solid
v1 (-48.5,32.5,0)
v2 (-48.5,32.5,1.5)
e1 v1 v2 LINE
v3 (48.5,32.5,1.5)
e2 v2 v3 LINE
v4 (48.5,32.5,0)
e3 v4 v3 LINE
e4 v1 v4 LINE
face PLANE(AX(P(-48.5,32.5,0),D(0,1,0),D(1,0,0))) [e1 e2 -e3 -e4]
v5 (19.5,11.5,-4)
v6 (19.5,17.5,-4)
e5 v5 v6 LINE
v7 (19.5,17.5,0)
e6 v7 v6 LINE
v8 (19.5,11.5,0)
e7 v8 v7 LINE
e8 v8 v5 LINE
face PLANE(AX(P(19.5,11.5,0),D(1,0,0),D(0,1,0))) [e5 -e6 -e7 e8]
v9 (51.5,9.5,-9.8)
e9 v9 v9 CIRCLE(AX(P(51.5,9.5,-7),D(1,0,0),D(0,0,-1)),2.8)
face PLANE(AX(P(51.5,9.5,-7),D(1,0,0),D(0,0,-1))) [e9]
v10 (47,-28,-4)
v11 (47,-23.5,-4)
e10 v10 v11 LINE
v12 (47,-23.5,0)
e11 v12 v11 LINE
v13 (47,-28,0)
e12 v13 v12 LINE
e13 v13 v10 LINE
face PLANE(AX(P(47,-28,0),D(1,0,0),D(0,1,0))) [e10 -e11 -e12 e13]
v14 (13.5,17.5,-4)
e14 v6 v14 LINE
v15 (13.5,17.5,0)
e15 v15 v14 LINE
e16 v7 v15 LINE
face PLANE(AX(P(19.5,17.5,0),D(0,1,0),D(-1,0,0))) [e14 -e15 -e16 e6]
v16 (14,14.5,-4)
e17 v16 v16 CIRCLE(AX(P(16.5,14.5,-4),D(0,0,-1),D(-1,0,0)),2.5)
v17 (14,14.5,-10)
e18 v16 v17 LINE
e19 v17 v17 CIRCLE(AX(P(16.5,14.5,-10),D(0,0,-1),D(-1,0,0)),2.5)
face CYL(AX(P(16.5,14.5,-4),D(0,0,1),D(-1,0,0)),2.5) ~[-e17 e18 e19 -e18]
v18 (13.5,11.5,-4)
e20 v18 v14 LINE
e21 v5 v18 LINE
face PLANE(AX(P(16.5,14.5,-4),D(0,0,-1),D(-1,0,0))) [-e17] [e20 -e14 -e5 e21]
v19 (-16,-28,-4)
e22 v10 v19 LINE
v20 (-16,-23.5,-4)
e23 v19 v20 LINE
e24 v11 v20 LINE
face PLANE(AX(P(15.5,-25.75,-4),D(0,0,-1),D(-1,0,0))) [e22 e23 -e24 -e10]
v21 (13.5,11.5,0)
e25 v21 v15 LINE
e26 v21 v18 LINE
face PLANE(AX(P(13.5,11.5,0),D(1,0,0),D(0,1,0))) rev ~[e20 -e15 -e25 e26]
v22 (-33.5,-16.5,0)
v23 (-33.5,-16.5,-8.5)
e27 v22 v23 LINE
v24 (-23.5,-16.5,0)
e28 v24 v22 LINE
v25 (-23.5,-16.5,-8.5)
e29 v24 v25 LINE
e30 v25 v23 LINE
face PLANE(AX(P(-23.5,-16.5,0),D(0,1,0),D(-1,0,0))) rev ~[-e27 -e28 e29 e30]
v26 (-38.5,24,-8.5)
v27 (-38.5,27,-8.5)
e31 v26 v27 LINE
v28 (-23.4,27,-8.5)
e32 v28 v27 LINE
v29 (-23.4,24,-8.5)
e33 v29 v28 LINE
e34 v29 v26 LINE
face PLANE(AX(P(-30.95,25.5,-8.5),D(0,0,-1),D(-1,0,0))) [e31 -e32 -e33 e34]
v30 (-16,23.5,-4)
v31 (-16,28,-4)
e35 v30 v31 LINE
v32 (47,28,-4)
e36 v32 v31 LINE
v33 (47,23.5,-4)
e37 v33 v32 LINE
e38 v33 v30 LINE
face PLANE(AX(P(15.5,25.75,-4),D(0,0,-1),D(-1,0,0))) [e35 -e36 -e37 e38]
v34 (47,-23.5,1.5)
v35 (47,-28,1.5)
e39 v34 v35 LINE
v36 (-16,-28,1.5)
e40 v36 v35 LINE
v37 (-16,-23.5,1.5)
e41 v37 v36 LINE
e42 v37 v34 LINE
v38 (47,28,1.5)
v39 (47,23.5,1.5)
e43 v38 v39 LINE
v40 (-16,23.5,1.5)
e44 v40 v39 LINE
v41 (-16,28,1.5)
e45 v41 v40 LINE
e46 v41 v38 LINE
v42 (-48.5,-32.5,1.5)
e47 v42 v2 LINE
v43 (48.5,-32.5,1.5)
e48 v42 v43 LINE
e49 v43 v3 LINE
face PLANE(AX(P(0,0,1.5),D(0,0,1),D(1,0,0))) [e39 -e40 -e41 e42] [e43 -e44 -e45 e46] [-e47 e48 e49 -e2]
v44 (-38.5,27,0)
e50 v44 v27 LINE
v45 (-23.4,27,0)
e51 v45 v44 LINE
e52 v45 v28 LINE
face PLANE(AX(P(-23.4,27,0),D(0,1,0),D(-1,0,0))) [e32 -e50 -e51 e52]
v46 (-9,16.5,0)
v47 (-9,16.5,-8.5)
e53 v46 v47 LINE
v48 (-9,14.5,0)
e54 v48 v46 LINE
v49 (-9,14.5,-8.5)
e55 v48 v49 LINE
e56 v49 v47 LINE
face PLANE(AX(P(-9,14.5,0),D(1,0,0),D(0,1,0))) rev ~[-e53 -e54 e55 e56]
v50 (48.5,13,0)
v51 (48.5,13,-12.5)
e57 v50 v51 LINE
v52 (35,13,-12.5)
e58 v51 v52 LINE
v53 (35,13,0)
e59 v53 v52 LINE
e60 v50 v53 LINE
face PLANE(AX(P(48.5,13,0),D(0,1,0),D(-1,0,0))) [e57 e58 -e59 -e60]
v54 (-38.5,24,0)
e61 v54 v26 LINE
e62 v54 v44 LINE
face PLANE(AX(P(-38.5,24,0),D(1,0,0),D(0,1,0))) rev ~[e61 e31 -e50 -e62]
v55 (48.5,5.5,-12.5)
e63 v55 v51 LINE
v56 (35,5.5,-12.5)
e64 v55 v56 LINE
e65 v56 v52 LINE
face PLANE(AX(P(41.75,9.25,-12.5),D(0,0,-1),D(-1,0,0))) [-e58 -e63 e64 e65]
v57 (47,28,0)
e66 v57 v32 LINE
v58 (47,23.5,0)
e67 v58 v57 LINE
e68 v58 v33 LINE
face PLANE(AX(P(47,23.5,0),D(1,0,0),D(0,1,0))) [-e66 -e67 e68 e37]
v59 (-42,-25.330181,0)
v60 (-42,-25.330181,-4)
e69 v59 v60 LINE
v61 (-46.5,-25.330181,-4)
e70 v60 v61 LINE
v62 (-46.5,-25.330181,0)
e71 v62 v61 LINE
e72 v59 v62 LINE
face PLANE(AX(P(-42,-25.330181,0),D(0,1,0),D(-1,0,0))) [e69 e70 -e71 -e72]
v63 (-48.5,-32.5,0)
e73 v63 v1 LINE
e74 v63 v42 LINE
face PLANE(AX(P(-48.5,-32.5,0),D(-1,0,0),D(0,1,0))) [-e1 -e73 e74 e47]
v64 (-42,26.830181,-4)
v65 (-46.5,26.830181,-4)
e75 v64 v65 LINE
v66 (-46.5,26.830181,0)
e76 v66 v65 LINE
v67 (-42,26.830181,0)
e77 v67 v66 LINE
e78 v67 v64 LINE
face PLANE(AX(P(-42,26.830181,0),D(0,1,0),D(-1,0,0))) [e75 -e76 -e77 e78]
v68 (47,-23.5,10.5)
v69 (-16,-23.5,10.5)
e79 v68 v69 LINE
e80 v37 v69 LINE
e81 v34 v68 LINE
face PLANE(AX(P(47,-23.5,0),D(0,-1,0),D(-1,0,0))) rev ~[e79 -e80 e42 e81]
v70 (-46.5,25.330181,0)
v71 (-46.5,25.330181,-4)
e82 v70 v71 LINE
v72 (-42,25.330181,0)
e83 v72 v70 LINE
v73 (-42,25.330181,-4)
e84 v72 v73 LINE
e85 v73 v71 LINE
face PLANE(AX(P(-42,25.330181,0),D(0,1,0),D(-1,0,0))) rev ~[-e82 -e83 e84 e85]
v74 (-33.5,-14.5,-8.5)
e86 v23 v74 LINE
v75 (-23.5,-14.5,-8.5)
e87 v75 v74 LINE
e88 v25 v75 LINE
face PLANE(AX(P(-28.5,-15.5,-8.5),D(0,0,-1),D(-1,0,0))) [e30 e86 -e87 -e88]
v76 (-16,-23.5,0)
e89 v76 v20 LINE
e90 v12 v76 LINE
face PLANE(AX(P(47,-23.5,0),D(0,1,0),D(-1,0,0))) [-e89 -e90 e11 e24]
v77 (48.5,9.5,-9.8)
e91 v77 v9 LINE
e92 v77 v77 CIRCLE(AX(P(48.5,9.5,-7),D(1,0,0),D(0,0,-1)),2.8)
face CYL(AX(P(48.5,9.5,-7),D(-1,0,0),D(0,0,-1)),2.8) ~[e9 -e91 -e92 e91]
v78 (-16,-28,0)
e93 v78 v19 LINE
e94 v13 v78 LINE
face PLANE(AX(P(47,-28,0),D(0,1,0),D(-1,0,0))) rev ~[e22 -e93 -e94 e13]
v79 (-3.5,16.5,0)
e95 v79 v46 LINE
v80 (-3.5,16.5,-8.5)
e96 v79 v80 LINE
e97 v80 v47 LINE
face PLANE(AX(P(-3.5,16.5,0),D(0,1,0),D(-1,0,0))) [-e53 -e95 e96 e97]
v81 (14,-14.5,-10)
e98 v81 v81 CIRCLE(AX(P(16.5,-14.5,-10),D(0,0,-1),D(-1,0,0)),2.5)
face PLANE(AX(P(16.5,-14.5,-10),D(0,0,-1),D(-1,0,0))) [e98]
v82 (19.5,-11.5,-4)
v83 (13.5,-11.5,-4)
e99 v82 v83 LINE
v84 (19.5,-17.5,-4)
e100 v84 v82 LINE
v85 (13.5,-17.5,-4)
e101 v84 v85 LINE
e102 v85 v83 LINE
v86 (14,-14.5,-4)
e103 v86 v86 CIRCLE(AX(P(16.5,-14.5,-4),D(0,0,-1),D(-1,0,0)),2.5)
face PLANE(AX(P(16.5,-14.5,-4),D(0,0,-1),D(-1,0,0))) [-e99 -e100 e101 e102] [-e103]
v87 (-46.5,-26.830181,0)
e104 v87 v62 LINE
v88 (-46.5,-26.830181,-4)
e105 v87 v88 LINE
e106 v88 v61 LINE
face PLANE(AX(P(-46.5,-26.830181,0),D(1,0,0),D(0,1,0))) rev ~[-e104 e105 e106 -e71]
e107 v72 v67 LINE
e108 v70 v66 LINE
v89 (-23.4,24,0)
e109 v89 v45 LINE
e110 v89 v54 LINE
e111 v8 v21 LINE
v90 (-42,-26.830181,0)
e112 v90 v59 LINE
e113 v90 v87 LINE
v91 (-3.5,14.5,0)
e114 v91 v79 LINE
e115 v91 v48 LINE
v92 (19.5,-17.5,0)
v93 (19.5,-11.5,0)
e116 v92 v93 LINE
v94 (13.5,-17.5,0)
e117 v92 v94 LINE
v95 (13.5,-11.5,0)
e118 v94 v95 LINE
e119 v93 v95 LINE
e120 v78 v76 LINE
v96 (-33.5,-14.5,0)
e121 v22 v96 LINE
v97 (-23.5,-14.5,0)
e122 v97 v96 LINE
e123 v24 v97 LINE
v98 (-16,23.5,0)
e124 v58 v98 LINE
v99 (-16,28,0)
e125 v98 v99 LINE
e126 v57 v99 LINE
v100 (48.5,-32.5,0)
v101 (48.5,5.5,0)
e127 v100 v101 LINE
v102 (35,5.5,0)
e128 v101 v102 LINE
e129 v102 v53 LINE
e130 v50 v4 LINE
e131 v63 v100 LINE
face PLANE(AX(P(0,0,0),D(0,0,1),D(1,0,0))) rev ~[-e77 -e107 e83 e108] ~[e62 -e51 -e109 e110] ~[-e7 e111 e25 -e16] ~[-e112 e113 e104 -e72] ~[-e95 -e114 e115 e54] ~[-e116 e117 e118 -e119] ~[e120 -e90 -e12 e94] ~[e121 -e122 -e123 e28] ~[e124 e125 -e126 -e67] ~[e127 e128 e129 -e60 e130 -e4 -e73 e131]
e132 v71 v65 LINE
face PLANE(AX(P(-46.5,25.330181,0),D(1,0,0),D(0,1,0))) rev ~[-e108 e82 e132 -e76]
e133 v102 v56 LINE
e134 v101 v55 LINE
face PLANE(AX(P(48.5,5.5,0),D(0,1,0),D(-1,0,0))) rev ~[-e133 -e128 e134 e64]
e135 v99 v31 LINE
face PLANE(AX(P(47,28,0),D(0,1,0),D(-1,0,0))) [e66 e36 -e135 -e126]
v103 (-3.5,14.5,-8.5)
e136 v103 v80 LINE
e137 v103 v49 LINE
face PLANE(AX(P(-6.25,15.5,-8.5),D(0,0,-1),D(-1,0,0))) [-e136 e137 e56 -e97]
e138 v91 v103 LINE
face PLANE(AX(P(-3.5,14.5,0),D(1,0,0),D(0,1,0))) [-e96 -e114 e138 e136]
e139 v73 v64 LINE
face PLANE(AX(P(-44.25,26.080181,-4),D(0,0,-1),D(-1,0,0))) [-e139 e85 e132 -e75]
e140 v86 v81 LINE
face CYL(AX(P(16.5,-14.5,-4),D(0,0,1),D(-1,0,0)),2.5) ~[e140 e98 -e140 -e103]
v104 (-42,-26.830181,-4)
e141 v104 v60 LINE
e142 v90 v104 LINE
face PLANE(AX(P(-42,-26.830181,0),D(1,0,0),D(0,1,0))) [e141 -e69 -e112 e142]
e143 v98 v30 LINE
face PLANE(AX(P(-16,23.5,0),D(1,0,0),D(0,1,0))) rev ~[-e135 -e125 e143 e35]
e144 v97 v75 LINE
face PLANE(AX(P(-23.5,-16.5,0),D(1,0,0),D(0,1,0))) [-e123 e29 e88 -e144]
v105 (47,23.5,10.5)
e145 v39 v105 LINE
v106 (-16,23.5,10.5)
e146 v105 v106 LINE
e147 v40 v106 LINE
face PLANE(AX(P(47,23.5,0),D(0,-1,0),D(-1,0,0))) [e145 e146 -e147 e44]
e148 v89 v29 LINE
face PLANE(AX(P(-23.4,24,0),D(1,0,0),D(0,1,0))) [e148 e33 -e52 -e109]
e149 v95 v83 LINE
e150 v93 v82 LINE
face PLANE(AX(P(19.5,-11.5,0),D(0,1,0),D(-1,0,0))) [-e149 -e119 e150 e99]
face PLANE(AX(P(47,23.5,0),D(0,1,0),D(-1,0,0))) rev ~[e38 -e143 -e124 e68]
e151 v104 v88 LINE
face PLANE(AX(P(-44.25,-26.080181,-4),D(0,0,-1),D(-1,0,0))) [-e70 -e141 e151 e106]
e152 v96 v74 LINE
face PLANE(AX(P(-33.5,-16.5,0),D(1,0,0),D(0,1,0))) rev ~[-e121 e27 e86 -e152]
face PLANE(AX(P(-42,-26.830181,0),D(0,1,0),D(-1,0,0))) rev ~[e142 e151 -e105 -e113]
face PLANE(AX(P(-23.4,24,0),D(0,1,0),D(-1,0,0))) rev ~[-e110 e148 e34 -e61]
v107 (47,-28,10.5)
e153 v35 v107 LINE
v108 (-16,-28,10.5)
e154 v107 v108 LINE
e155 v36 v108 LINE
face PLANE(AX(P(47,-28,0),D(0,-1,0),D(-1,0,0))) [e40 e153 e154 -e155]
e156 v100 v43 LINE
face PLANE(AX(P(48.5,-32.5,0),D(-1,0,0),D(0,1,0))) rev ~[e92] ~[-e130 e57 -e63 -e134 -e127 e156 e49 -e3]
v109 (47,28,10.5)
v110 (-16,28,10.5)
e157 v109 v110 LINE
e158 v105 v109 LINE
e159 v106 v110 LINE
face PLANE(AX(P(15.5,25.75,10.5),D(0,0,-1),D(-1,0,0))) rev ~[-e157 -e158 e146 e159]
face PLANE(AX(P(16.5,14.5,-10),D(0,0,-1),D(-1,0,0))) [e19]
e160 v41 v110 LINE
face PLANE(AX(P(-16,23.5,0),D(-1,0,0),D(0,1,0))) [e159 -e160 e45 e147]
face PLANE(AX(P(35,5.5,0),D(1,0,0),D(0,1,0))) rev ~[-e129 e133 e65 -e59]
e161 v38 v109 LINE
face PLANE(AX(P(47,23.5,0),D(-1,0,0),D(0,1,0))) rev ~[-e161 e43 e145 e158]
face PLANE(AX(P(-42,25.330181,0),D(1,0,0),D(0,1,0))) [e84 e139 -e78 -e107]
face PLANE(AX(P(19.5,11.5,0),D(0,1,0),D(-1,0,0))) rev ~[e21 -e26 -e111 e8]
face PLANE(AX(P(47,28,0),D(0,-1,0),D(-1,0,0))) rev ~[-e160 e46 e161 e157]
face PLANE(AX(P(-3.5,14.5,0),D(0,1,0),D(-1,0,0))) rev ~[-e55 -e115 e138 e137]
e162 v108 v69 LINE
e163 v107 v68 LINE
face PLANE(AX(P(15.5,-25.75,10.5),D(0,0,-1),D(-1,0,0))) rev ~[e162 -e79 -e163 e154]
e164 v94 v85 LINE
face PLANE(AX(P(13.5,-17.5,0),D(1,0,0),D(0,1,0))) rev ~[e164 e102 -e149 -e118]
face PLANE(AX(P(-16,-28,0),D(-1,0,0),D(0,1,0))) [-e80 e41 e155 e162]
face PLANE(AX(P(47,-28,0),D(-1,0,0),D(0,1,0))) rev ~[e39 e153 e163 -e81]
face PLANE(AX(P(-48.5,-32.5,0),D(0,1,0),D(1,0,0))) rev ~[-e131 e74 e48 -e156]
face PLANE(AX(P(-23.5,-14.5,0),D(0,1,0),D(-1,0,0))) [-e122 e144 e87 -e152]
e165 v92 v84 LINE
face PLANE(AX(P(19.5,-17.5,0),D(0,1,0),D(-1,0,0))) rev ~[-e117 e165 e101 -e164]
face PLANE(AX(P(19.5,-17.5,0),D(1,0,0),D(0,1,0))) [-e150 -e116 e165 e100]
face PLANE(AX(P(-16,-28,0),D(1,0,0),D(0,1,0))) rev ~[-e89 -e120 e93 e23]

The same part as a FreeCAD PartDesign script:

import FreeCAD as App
import Part
import Sketcher


def add_polygon(sketch, points):
    """Adds a closed chain of lines whose ends are joined by coincident constraints."""
    first, n = sketch.GeometryCount, len(points)
    for a, b in zip(points, points[1:] + points[:1]):
        sketch.addGeometry(Part.LineSegment(App.Vector(*a, 0), App.Vector(*b, 0)), False)
    for i in range(n):
        sketch.addConstraint(Sketcher.Constraint("Coincident", first + i, 2, first + (i + 1) % n, 1))

doc = App.newDocument("Part")
body = doc.addObject("PartDesign::Body", "Body")

# Sketch on XY plane
sketch1 = doc.addObject("Sketcher::SketchObject", "Sketch")
body.addObject(sketch1)
sketch1.AttachmentSupport = (doc.XY_Plane, [""])
sketch1.MapMode = "FlatFace"
add_polygon(sketch1, [(-48, 32), (-48, -32), (48, -32), (48, 32)])  # lines 0-3
sketch1.addConstraint([
    Sketcher.Constraint("Vertical", 0),
    Sketcher.Constraint("Horizontal", 1),
    Sketcher.Constraint("Vertical", 2),
    Sketcher.Constraint("Horizontal", 3),
    Sketcher.Constraint("Symmetric", 0, 2, 2, 2, -1, 1),
    Sketcher.Constraint("DistanceX", 1, 1, 1, 2, 97.0),
    Sketcher.Constraint("DistanceY", 0, 2, 0, 1, 65.0),
])
pad1 = doc.addObject("PartDesign::Pad", "Pad")
body.addObject(pad1)
pad1.Profile = sketch1
pad1.Length = 1.5

# Sketch on XY plane
sketch2 = doc.addObject("Sketcher::SketchObject", "Sketch001")
body.addObject(sketch2)
sketch2.AttachmentSupport = (doc.XY_Plane, [""])
sketch2.MapMode = "FlatFace"
add_polygon(sketch2, [(47, 28), (47, 23.5), (-16, 23.5), (-16, 28)])  # lines 0-3
add_polygon(sketch2, [(47, -23.5), (47, -28), (-16, -28), (-16, -23.5)])  # lines 4-7
sketch2.addConstraint([
    Sketcher.Constraint("Vertical", 0),
    Sketcher.Constraint("Horizontal", 1),
    Sketcher.Constraint("Vertical", 2),
    Sketcher.Constraint("Horizontal", 3),
    Sketcher.Constraint("Vertical", 4),
    Sketcher.Constraint("Horizontal", 5),
    Sketcher.Constraint("Vertical", 6),
    Sketcher.Constraint("Horizontal", 7),
    Sketcher.Constraint("Symmetric", 3, 2, 4, 2, -1),
    Sketcher.Constraint("Symmetric", 1, 2, 6, 2, -1),
    Sketcher.Constraint("DistanceX", 1, 2, 1, 1, 63.0),
    Sketcher.Constraint("DistanceY", 0, 2, 0, 1, 4.5),
    Sketcher.Constraint("DistanceX", -1, 1, 0, 2, 47.0),
    Sketcher.Constraint("DistanceY", -1, 1, 2, 2, 28.0),
])
pad2 = doc.addObject("PartDesign::Pad", "Pad001")
body.addObject(pad2)
pad2.Profile = sketch2
pad2.Type = "TwoLengths"
pad2.Length = 4
pad2.Length2 = 10.5
pad2.Reversed = True

# Sketch on XY plane
sketch3 = doc.addObject("Sketcher::SketchObject", "Sketch002")
body.addObject(sketch3)
sketch3.AttachmentSupport = (doc.XY_Plane, [""])
sketch3.MapMode = "FlatFace"
add_polygon(sketch3, [(48, 13), (48, 6), (35, 6), (35, 13)])  # lines 0-3
sketch3.addConstraint([
    Sketcher.Constraint("Vertical", 0),
    Sketcher.Constraint("Horizontal", 1),
    Sketcher.Constraint("Vertical", 2),
    Sketcher.Constraint("Horizontal", 3),
    Sketcher.Constraint("DistanceX", 1, 2, 1, 1, 13.5),
    Sketcher.Constraint("DistanceY", 0, 2, 0, 1, 7.5),
    Sketcher.Constraint("DistanceX", -1, 1, 1, 2, 35.0),
    Sketcher.Constraint("DistanceY", -1, 1, 2, 2, 13.0),
])
pad3 = doc.addObject("PartDesign::Pad", "Pad002")
body.addObject(pad3)
pad3.Profile = sketch3
pad3.Length = 12.5
pad3.Reversed = True

# Sketch on YZ plane
sketch4 = doc.addObject("Sketcher::SketchObject", "Sketch003")
body.addObject(sketch4)
sketch4.AttachmentSupport = (doc.YZ_Plane, [""])
sketch4.MapMode = "FlatFace"
sketch4.AttachmentOffset = App.Placement(App.Vector(0, 0, 48.5), App.Rotation())
sketch4.addGeometry(Part.Circle(App.Vector(9.5, -7, 0), App.Vector(0, 0, 1), 2.8), False)
sketch4.addConstraint([
    Sketcher.Constraint("Diameter", 0, 5.6),
    Sketcher.Constraint("DistanceY", 0, 3, -1, 1, 7.0),
    Sketcher.Constraint("DistanceX", -1, 1, 0, 3, 9.5),
])
pad4 = doc.addObject("PartDesign::Pad", "Pad003")
body.addObject(pad4)
pad4.Profile = sketch4
pad4.Length = 3

# Sketch on XY plane
sketch5 = doc.addObject("Sketcher::SketchObject", "Sketch004")
body.addObject(sketch5)
sketch5.AttachmentSupport = (doc.XY_Plane, [""])
sketch5.MapMode = "FlatFace"
add_polygon(sketch5, [(-42, -25.3), (-42, -26.8), (-46.5, -26.8), (-46.5, -25.3)])  # lines 0-3
add_polygon(sketch5, [(-42, 26.8), (-42, 25.3), (-46.5, 25.3), (-46.5, 26.8)])  # lines 4-7
sketch5.addConstraint([
    Sketcher.Constraint("Vertical", 0),
    Sketcher.Constraint("Horizontal", 1),
    Sketcher.Constraint("Vertical", 2),
    Sketcher.Constraint("Horizontal", 3),
    Sketcher.Constraint("Vertical", 4),
    Sketcher.Constraint("Horizontal", 5),
    Sketcher.Constraint("Vertical", 6),
    Sketcher.Constraint("Horizontal", 7),
    Sketcher.Constraint("Symmetric", 3, 2, 4, 2, -1),
    Sketcher.Constraint("Symmetric", 1, 2, 6, 2, -1),
    Sketcher.Constraint("DistanceX", 1, 2, 1, 1, 4.5),
    Sketcher.Constraint("DistanceY", 0, 2, 0, 1, 1.5),
    Sketcher.Constraint("DistanceX", 0, 2, -1, 1, 42.0),
    Sketcher.Constraint("DistanceY", 0, 2, -1, 1, 26.830181),
])
pad5 = doc.addObject("PartDesign::Pad", "Pad004")
body.addObject(pad5)
pad5.Profile = sketch5
pad5.Length = 4
pad5.Reversed = True

# Sketch on XY plane
sketch6 = doc.addObject("Sketcher::SketchObject", "Sketch005")
body.addObject(sketch6)
sketch6.AttachmentSupport = (doc.XY_Plane, [""])
sketch6.MapMode = "FlatFace"
add_polygon(sketch6, [(-23.4, 27), (-23.4, 24), (-38.5, 24), (-38.5, 27)])  # lines 0-3
sketch6.addConstraint([
    Sketcher.Constraint("Vertical", 0),
    Sketcher.Constraint("Horizontal", 1),
    Sketcher.Constraint("Vertical", 2),
    Sketcher.Constraint("Horizontal", 3),
    Sketcher.Constraint("DistanceY", 0, 2, 0, 1, 3.0),
    Sketcher.Constraint("DistanceX", 1, 2, 1, 1, 15.1),
    Sketcher.Constraint("DistanceY", -1, 1, 0, 2, 24.0),
    Sketcher.Constraint("DistanceX", 0, 2, -1, 1, 23.4),
])
pad6 = doc.addObject("PartDesign::Pad", "Pad005")
body.addObject(pad6)
pad6.Profile = sketch6
pad6.Length = 8.5
pad6.Reversed = True

# Sketch on XY plane
sketch7 = doc.addObject("Sketcher::SketchObject", "Sketch006")
body.addObject(sketch7)
sketch7.AttachmentSupport = (doc.XY_Plane, [""])
sketch7.MapMode = "FlatFace"
add_polygon(sketch7, [(-23.5, -14.5), (-23.5, -16.5), (-33.5, -16.5), (-33.5, -14.5)])  # lines 0-3
sketch7.addConstraint([
    Sketcher.Constraint("Vertical", 0),
    Sketcher.Constraint("Horizontal", 1),
    Sketcher.Constraint("Vertical", 2),
    Sketcher.Constraint("Horizontal", 3),
    Sketcher.Constraint("DistanceX", 1, 2, 1, 1, 10.0),
    Sketcher.Constraint("DistanceY", 0, 2, 0, 1, 2.0),
    Sketcher.Constraint("DistanceX", 0, 2, -1, 1, 23.5),
    Sketcher.Constraint("DistanceY", 0, 2, -1, 1, 16.5),
])
pad7 = doc.addObject("PartDesign::Pad", "Pad006")
body.addObject(pad7)
pad7.Profile = sketch7
pad7.Length = 8.5
pad7.Reversed = True

# Sketch on XY plane
sketch8 = doc.addObject("Sketcher::SketchObject", "Sketch007")
body.addObject(sketch8)
sketch8.AttachmentSupport = (doc.XY_Plane, [""])
sketch8.MapMode = "FlatFace"
add_polygon(sketch8, [(-3.5, 16.5), (-3.5, 14.5), (-9, 14.5), (-9, 16.5)])  # lines 0-3
sketch8.addConstraint([
    Sketcher.Constraint("Vertical", 0),
    Sketcher.Constraint("Horizontal", 1),
    Sketcher.Constraint("Vertical", 2),
    Sketcher.Constraint("Horizontal", 3),
    Sketcher.Constraint("DistanceY", 0, 2, 0, 1, 2.0),
    Sketcher.Constraint("DistanceX", 1, 2, 1, 1, 5.5),
    Sketcher.Constraint("DistanceX", 1, 2, -1, 1, 9.0),
    Sketcher.Constraint("DistanceY", -1, 1, 0, 2, 14.5),
])
pad8 = doc.addObject("PartDesign::Pad", "Pad007")
body.addObject(pad8)
pad8.Profile = sketch8
pad8.Length = 8.5
pad8.Reversed = True

# Sketch on XY plane
sketch9 = doc.addObject("Sketcher::SketchObject", "Sketch008")
body.addObject(sketch9)
sketch9.AttachmentSupport = (doc.XY_Plane, [""])
sketch9.MapMode = "FlatFace"
add_polygon(sketch9, [(20, -12), (20, -18), (14, -18), (14, -12)])  # lines 0-3
add_polygon(sketch9, [(20, 18), (20, 12), (14, 12), (14, 18)])  # lines 4-7
sketch9.addConstraint([
    Sketcher.Constraint("Vertical", 0),
    Sketcher.Constraint("Horizontal", 1),
    Sketcher.Constraint("Vertical", 2),
    Sketcher.Constraint("Horizontal", 3),
    Sketcher.Constraint("Vertical", 4),
    Sketcher.Constraint("Horizontal", 5),
    Sketcher.Constraint("Vertical", 6),
    Sketcher.Constraint("Horizontal", 7),
    Sketcher.Constraint("Symmetric", 3, 2, 4, 2, -1),
    Sketcher.Constraint("Symmetric", 1, 2, 6, 2, -1),
    Sketcher.Constraint("Equal", 7, 0),
    Sketcher.Constraint("DistanceX", 1, 2, 1, 1, 6.0),
    Sketcher.Constraint("DistanceY", 3, 2, 4, 2, 23.0),
    Sketcher.Constraint("DistanceX", -1, 1, 0, 2, 19.5),
])
pad9 = doc.addObject("PartDesign::Pad", "Pad008")
body.addObject(pad9)
pad9.Profile = sketch9
pad9.Length = 4
pad9.Reversed = True

# Sketch on XY plane
sketch10 = doc.addObject("Sketcher::SketchObject", "Sketch009")
body.addObject(sketch10)
sketch10.AttachmentSupport = (doc.XY_Plane, [""])
sketch10.MapMode = "FlatFace"
sketch10.AttachmentOffset = App.Placement(App.Vector(0, 0, -4), App.Rotation())
sketch10.addGeometry(Part.Circle(App.Vector(16.5, 14.5, 0), App.Vector(0, 0, 1), 2.5), False)
sketch10.addConstraint([
    Sketcher.Constraint("Diameter", 0, 5.0),
    Sketcher.Constraint("DistanceX", -1, 1, 0, 3, 16.5),
    Sketcher.Constraint("DistanceY", -1, 1, 0, 3, 14.5),
])
pad10 = doc.addObject("PartDesign::Pad", "Pad009")
body.addObject(pad10)
pad10.Profile = sketch10
pad10.Length = 6
pad10.Reversed = True

# Sketch on XY plane
sketch11 = doc.addObject("Sketcher::SketchObject", "Sketch010")
body.addObject(sketch11)
sketch11.AttachmentSupport = (doc.XY_Plane, [""])
sketch11.MapMode = "FlatFace"
sketch11.AttachmentOffset = App.Placement(App.Vector(0, 0, -4), App.Rotation())
sketch11.addGeometry(Part.Circle(App.Vector(16.5, -14.5, 0), App.Vector(0, 0, 1), 2.5), False)
sketch11.addConstraint([
    Sketcher.Constraint("Diameter", 0, 5.0),
    Sketcher.Constraint("DistanceX", -1, 1, 0, 3, 16.5),
    Sketcher.Constraint("DistanceY", 0, 3, -1, 1, 14.5),
])
pad11 = doc.addObject("PartDesign::Pad", "Pad010")
body.addObject(pad11)
pad11.Profile = sketch11
pad11.Length = 6
pad11.Reversed = True

doc.recompute()
